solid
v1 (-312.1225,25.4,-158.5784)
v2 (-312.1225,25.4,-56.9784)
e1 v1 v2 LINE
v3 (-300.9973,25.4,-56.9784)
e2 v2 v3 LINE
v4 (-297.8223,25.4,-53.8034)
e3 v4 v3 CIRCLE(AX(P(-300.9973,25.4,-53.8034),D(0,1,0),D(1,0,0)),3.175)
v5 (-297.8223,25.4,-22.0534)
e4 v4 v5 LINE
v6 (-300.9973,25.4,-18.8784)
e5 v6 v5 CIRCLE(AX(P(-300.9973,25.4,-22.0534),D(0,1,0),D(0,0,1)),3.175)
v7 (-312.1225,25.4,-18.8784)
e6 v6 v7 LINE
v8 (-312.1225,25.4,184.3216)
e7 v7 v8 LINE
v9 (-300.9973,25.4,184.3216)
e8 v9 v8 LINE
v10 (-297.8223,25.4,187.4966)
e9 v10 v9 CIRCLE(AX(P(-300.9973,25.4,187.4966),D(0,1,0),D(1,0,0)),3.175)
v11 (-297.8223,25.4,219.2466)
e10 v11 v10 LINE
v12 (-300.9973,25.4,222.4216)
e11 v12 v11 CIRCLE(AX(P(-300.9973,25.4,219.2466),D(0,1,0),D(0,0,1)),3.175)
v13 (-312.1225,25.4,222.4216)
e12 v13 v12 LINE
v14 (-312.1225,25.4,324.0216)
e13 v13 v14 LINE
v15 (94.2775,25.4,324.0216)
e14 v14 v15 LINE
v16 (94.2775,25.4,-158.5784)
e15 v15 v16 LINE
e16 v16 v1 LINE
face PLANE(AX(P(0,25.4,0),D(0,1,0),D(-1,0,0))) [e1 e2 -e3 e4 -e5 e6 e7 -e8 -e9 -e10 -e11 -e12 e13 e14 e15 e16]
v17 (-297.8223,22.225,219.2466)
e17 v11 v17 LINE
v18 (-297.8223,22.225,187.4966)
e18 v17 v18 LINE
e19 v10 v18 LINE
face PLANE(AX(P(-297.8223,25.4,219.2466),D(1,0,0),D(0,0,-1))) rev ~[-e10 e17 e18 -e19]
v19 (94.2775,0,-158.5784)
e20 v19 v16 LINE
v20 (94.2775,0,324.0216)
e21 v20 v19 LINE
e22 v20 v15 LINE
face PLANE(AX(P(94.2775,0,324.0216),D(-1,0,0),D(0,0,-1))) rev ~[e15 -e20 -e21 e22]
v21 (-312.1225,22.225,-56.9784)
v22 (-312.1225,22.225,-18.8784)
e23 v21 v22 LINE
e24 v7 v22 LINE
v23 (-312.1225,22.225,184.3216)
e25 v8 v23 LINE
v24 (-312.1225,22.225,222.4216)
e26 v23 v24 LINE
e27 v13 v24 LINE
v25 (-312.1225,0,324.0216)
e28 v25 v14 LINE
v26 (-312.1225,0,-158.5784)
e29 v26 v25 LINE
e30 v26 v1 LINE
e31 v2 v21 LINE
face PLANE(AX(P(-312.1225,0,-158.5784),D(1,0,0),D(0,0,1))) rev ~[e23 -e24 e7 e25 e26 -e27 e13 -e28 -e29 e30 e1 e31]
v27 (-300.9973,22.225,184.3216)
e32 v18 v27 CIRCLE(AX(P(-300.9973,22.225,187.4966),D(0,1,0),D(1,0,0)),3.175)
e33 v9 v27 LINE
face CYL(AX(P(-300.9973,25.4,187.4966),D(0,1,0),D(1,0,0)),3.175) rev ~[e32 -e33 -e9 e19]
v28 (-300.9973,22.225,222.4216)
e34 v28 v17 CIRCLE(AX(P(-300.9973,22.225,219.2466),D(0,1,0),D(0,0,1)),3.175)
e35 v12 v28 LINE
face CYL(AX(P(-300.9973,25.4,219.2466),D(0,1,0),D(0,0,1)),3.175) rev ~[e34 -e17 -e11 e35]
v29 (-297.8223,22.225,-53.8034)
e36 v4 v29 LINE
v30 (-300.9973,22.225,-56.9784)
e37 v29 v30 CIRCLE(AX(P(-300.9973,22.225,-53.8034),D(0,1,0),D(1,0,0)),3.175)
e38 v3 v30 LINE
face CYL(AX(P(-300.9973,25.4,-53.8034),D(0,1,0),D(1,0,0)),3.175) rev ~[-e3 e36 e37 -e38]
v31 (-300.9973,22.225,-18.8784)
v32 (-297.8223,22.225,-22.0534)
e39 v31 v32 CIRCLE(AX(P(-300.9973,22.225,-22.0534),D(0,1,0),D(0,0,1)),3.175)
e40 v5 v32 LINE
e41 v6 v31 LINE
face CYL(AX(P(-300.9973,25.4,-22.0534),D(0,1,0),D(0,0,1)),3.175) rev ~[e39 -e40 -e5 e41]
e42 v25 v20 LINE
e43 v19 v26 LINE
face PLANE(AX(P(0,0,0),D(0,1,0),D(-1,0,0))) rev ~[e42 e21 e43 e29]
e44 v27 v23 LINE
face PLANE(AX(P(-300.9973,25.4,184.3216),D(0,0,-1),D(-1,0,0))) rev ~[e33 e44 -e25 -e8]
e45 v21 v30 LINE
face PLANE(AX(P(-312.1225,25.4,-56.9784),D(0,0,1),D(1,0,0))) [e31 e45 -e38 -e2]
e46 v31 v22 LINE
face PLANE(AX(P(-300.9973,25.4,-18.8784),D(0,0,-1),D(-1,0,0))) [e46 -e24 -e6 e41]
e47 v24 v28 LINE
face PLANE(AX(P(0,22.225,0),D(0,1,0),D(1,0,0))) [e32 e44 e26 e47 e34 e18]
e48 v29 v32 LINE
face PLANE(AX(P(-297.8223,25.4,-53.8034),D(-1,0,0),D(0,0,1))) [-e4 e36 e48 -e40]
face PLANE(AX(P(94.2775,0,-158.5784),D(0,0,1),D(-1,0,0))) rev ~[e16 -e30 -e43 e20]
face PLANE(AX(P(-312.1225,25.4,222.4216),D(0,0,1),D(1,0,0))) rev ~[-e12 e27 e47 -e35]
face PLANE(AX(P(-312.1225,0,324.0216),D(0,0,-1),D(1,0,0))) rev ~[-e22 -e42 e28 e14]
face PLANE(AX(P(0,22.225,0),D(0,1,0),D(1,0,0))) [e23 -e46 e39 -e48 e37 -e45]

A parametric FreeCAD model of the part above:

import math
import FreeCAD as App
import Part
import Sketcher
Q = App.Units.Quantity

doc = App.newDocument("Part")
body = doc.addObject("PartDesign::Body", "Body")

# Sketch on XZ plane
sketch1 = doc.addObject("Sketcher::SketchObject", "Sketch")
body.addObject(sketch1)
sketch1.AttachmentSupport = (doc.XZ_Plane, [""])
sketch1.MapMode = "FlatFace"
sketch1.addGeometry(Part.LineSegment(App.Vector(-312, -159, 0), App.Vector(-312, 324, 0)), False)
sketch1.addGeometry(Part.LineSegment(App.Vector(-312, 324, 0), App.Vector(94, 324, 0)), False)
sketch1.addGeometry(Part.LineSegment(App.Vector(94, 324, 0), App.Vector(94, -159, 0)), False)
sketch1.addGeometry(Part.LineSegment(App.Vector(94, -159, 0), App.Vector(-312, -159, 0)), False)
sketch1.addConstraint(Sketcher.Constraint("Coincident", 0, 2, 1, 1))
sketch1.addConstraint(Sketcher.Constraint("Coincident", 1, 2, 2, 1))
sketch1.addConstraint(Sketcher.Constraint("Coincident", 2, 2, 3, 1))
sketch1.addConstraint(Sketcher.Constraint("Coincident", 3, 2, 0, 1))
sketch1.addConstraint(Sketcher.Constraint("Vertical", 0))
sketch1.addConstraint(Sketcher.Constraint("Horizontal", 1))
sketch1.addConstraint(Sketcher.Constraint("Vertical", 2))
sketch1.addConstraint(Sketcher.Constraint("Horizontal", 3))
sketch1.addConstraint(Sketcher.Constraint("DistanceX", 1, 1, 1, 2, Q("16 in")))
sketch1.addConstraint(Sketcher.Constraint("DistanceY", 0, 1, 0, 2, Q("19 in")))
sketch1.addConstraint(Sketcher.Constraint("DistanceX", 0, 2, -1, 1, Q("312.1225 mm")))
sketch1.addConstraint(Sketcher.Constraint("DistanceY", -1, 1, 0, 2, Q("324.0216 mm")))
pad1 = doc.addObject("PartDesign::Pad", "Pad")
body.addObject(pad1)
pad1.Profile = sketch1
pad1.Length = Q("1 in")
pad1.Reversed = True

# Sketch on XZ plane
sketch2 = doc.addObject("Sketcher::SketchObject", "Sketch001")
body.addObject(sketch2)
sketch2.AttachmentSupport = (doc.XZ_Plane, [""])
sketch2.MapMode = "FlatFace"
sketch2.AttachmentOffset = App.Placement(App.Vector(0, 0, -1 * 25.4), App.Rotation())
sketch2.addGeometry(Part.LineSegment(App.Vector(-301, -57, 0), App.Vector(-312.1, -57, 0)), False)
sketch2.addGeometry(Part.LineSegment(App.Vector(-312.1, -57, 0), App.Vector(-312.1, -18.9, 0)), False)
sketch2.addGeometry(Part.LineSegment(App.Vector(-312.1, -18.9, 0), App.Vector(-301, -18.9, 0)), False)
sketch2.addGeometry(Part.ArcOfCircle(Part.Circle(App.Vector(-301, -22.1, 0), App.Vector(0, 0, 1), 3.2), math.radians(0), math.radians(90)), False)
sketch2.addGeometry(Part.LineSegment(App.Vector(-297.8, -22.1, 0), App.Vector(-297.8, -53.8, 0)), False)
sketch2.addGeometry(Part.ArcOfCircle(Part.Circle(App.Vector(-301, -53.8, 0), App.Vector(0, 0, 1), 3.2), math.radians(-90), math.radians(0)), False)
sketch2.addGeometry(Part.LineSegment(App.Vector(-301, 184.3, 0), App.Vector(-312.1, 184.3, 0)), False)
sketch2.addGeometry(Part.LineSegment(App.Vector(-312.1, 184.3, 0), App.Vector(-312.1, 222.4, 0)), False)
sketch2.addGeometry(Part.LineSegment(App.Vector(-312.1, 222.4, 0), App.Vector(-301, 222.4, 0)), False)
sketch2.addGeometry(Part.ArcOfCircle(Part.Circle(App.Vector(-301, 219.2, 0), App.Vector(0, 0, 1), 3.2), math.radians(0), math.radians(90)), False)
sketch2.addGeometry(Part.LineSegment(App.Vector(-297.8, 219.2, 0), App.Vector(-297.8, 187.5, 0)), False)
sketch2.addGeometry(Part.ArcOfCircle(Part.Circle(App.Vector(-301, 187.5, 0), App.Vector(0, 0, 1), 3.2), math.radians(-90), math.radians(0)), False)
sketch2.addConstraint(Sketcher.Constraint("Coincident", 0, 2, 1, 1))
sketch2.addConstraint(Sketcher.Constraint("Coincident", 1, 2, 2, 1))
sketch2.addConstraint(Sketcher.Constraint("Tangent", 2, 2, 3, 2))
sketch2.addConstraint(Sketcher.Constraint("Tangent", 3, 1, 4, 1))
sketch2.addConstraint(Sketcher.Constraint("Tangent", 4, 2, 5, 2))
sketch2.addConstraint(Sketcher.Constraint("Tangent", 5, 1, 0, 1))
sketch2.addConstraint(Sketcher.Constraint("Coincident", 6, 2, 7, 1))
sketch2.addConstraint(Sketcher.Constraint("Coincident", 7, 2, 8, 1))
sketch2.addConstraint(Sketcher.Constraint("Tangent", 8, 2, 9, 2))
sketch2.addConstraint(Sketcher.Constraint("Tangent", 9, 1, 10, 1))
sketch2.addConstraint(Sketcher.Constraint("Tangent", 10, 2, 11, 2))
sketch2.addConstraint(Sketcher.Constraint("Tangent", 11, 1, 6, 1))
sketch2.addConstraint(Sketcher.Constraint("Horizontal", 0))
sketch2.addConstraint(Sketcher.Constraint("Vertical", 1))
sketch2.addConstraint(Sketcher.Constraint("Horizontal", 2))
sketch2.addConstraint(Sketcher.Constraint("Vertical", 4))
sketch2.addConstraint(Sketcher.Constraint("Horizontal", 6))
sketch2.addConstraint(Sketcher.Constraint("Vertical", 7))
sketch2.addConstraint(Sketcher.Constraint("Horizontal", 8))
sketch2.addConstraint(Sketcher.Constraint("Vertical", 10))
sketch2.addConstraint(Sketcher.Constraint("Equal", 3, 5))
sketch2.addConstraint(Sketcher.Constraint("Equal", 5, 9))
sketch2.addConstraint(Sketcher.Constraint("Equal", 9, 11))
sketch2.addConstraint(Sketcher.Constraint("Vertical", 5, 3, 9, 3))
sketch2.addConstraint(Sketcher.Constraint("Vertical", 1, 2, 6, 2))
sketch2.addConstraint(Sketcher.Constraint("Equal", 1, 7))
sketch2.addConstraint(Sketcher.Constraint("DistanceY", 1, 1, 1, 2, Q("1.5 in")))
sketch2.addConstraint(Sketcher.Constraint("Radius", 3, Q("0.125 in")))
sketch2.addConstraint(Sketcher.Constraint("DistanceY", 1, 2, 6, 2, Q("8 in")))
sketch2.addConstraint(Sketcher.Constraint("DistanceX", 1, 2, 3, 1, Q("0.563 in")))
sketch2.addConstraint(Sketcher.Constraint("DistanceX", 3, 3, -1, 1, Q("300.9973 mm")))
sketch2.addConstraint(Sketcher.Constraint("DistanceY", 3, 3, -1, 1, Q("22.0534 mm")))
pocket1 = doc.addObject("PartDesign::Pocket", "Pocket")
body.addObject(pocket1)
pocket1.Profile = sketch2
pocket1.Length = Q("0.125 in")
pocket1.Reversed = True

doc.recompute()
